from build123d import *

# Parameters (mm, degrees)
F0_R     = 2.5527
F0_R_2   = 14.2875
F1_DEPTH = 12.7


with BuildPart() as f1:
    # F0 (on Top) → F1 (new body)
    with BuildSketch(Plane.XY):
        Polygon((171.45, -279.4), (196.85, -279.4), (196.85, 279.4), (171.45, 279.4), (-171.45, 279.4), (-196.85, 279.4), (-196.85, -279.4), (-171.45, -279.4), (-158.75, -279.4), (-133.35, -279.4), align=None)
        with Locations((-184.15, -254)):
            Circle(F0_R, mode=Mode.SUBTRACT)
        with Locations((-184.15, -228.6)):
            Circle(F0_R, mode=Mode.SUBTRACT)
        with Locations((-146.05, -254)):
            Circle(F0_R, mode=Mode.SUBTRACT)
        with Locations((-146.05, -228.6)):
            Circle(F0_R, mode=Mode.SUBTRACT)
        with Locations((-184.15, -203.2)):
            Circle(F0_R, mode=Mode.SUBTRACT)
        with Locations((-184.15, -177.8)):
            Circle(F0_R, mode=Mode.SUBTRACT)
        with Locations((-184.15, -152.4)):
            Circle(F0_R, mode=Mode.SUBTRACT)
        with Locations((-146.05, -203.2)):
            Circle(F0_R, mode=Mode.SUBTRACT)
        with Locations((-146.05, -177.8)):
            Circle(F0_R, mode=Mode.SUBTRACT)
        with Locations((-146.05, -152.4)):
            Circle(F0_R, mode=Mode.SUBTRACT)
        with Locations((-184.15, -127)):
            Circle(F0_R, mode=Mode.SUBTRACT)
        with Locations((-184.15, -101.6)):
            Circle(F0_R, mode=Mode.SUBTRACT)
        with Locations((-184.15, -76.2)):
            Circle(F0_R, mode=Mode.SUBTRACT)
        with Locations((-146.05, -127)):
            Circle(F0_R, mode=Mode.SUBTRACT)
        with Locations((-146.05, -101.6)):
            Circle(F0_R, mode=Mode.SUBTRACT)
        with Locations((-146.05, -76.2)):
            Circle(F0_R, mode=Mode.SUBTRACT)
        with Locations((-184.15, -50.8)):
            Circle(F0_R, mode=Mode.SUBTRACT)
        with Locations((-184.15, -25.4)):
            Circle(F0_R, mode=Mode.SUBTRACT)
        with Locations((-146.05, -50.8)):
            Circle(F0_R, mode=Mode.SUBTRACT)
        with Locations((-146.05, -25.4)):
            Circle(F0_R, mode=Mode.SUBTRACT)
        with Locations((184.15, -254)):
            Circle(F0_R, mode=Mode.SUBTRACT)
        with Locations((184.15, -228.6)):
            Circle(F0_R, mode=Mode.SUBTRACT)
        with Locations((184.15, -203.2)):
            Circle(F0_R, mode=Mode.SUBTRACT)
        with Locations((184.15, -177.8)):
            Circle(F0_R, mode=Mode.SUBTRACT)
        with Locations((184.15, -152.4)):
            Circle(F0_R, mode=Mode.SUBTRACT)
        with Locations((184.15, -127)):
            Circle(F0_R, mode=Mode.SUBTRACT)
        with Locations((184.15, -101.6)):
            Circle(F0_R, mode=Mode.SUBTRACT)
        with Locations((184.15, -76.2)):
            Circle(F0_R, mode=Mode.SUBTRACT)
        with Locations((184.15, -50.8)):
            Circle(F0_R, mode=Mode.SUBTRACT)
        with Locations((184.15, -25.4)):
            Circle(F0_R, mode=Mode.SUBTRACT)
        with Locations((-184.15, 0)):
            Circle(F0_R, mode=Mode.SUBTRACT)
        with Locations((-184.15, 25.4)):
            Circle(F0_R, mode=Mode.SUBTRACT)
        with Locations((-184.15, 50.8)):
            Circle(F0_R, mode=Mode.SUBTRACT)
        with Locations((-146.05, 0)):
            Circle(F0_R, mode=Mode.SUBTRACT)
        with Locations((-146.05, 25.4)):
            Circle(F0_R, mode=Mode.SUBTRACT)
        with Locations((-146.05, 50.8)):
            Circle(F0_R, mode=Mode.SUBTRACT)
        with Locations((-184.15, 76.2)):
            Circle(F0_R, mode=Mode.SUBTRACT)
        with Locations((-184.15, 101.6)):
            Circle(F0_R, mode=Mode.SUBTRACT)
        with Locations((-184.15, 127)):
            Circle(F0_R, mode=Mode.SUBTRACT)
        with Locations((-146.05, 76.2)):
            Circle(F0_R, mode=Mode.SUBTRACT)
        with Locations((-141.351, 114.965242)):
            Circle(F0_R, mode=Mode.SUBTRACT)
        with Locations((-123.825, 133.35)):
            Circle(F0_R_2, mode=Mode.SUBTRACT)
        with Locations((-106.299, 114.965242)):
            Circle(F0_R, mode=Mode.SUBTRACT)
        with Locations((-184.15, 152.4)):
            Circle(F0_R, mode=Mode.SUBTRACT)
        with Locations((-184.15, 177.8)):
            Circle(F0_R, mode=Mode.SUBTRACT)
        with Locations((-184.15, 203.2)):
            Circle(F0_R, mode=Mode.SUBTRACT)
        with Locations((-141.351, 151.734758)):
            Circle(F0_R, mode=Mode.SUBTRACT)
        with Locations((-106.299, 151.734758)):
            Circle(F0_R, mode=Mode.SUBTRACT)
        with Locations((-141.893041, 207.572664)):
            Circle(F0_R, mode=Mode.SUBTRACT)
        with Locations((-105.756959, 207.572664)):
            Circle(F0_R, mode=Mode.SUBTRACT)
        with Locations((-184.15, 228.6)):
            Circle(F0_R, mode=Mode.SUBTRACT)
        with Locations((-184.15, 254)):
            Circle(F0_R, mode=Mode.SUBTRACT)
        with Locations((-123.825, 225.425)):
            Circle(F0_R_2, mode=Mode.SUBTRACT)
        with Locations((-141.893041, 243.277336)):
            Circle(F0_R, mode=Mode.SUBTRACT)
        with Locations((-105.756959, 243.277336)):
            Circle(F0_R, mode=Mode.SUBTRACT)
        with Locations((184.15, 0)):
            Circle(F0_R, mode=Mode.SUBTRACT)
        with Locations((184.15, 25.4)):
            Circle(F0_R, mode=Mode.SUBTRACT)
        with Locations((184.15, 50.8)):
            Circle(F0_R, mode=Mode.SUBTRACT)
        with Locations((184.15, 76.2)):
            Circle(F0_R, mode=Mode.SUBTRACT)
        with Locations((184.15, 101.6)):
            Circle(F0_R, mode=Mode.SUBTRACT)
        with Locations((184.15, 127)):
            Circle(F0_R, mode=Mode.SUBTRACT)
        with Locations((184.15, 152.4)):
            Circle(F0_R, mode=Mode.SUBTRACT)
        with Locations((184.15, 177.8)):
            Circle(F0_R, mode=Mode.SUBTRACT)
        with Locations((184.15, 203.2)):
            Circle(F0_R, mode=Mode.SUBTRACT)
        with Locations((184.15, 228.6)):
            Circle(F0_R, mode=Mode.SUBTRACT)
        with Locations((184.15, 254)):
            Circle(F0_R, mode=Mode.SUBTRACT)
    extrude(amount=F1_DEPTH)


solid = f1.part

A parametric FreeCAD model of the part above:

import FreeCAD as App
import Part
import Sketcher

V = App.Vector
Q = App.Units.Quantity

doc = App.newDocument("Part")
body = doc.addObject("PartDesign::Body", "Body")

# Sketch on XY plane
sketch1 = body.newObject("Sketcher::SketchObject", "Sketch")
sketch1.AttachmentSupport = (doc.getObject("XY_Plane"), [""])
sketch1.MapMode = "FlatFace"
sketch1.addGeometry([
    Part.LineSegment(V(196.8, -279.4, 0), V(196.8, 279.4, 0)),  # 0
    Part.LineSegment(V(196.8, 279.4, 0), V(-196.8, 279.4, 0)),  # 1
    Part.LineSegment(V(-196.8, 279.4, 0), V(-196.8, -279.4, 0)),  # 2
    Part.LineSegment(V(-196.8, -279.4, 0), V(196.8, -279.4, 0)),  # 3
    Part.Circle(V(-184.2, -254, 0), V(0, 0, 1), 2.6),  # 4
    Part.Circle(V(-184.2, -228.6, 0), V(0, 0, 1), 2.6),  # 5
    Part.Circle(V(-146.1, -254, 0), V(0, 0, 1), 2.6),  # 6
    Part.Circle(V(-146.1, -228.6, 0), V(0, 0, 1), 2.6),  # 7
    Part.Circle(V(-184.2, -203.2, 0), V(0, 0, 1), 2.6),  # 8
    Part.Circle(V(-146.1, -203.2, 0), V(0, 0, 1), 2.6),  # 9
    Part.Circle(V(-184.2, -177.8, 0), V(0, 0, 1), 2.6),  # 10
    Part.Circle(V(-146.1, -177.8, 0), V(0, 0, 1), 2.6),  # 11
    Part.Circle(V(-184.2, -152.4, 0), V(0, 0, 1), 2.6),  # 12
    Part.Circle(V(-146.1, -152.4, 0), V(0, 0, 1), 2.6),  # 13
    Part.Circle(V(-184.2, -127, 0), V(0, 0, 1), 2.6),  # 14
    Part.Circle(V(-184.2, -101.6, 0), V(0, 0, 1), 2.6),  # 15
    Part.Circle(V(-146.1, -127, 0), V(0, 0, 1), 2.6),  # 16
    Part.Circle(V(-146.1, -101.6, 0), V(0, 0, 1), 2.6),  # 17
    Part.Circle(V(-184.2, -76.2, 0), V(0, 0, 1), 2.6),  # 18
    Part.Circle(V(-146.1, -76.2, 0), V(0, 0, 1), 2.6),  # 19
    Part.Circle(V(-184.2, -50.8, 0), V(0, 0, 1), 2.6),  # 20
    Part.Circle(V(-146.1, -50.8, 0), V(0, 0, 1), 2.6),  # 21
    Part.Circle(V(-184.2, -25.4, 0), V(0, 0, 1), 2.6),  # 22
    Part.Circle(V(-146.1, -25.4, 0), V(0, 0, 1), 2.6),  # 23
    Part.Circle(V(184.2, -254, 0), V(0, 0, 1), 2.6),  # 24
    Part.Circle(V(184.2, -228.6, 0), V(0, 0, 1), 2.6),  # 25
    Part.Circle(V(184.2, -203.2, 0), V(0, 0, 1), 2.6),  # 26
    Part.Circle(V(184.2, -177.8, 0), V(0, 0, 1), 2.6),  # 27
    Part.Circle(V(184.2, -152.4, 0), V(0, 0, 1), 2.6),  # 28
    Part.Circle(V(184.2, -127, 0), V(0, 0, 1), 2.6),  # 29
    Part.Circle(V(184.2, -101.6, 0), V(0, 0, 1), 2.6),  # 30
    Part.Circle(V(184.2, -76.2, 0), V(0, 0, 1), 2.6),  # 31
    Part.Circle(V(184.2, -50.8, 0), V(0, 0, 1), 2.6),  # 32
    Part.Circle(V(184.2, -25.4, 0), V(0, 0, 1), 2.6),  # 33
    Part.Circle(V(-184.2, 0, 0), V(0, 0, 1), 2.6),  # 34
    Part.Circle(V(-184.2, 25.4, 0), V(0, 0, 1), 2.6),  # 35
    Part.Circle(V(-146.1, 0, 0), V(0, 0, 1), 2.6),  # 36
    Part.Circle(V(-146.1, 25.4, 0), V(0, 0, 1), 2.6),  # 37
    Part.Circle(V(-184.2, 50.8, 0), V(0, 0, 1), 2.6),  # 38
    Part.Circle(V(-146.1, 50.8, 0), V(0, 0, 1), 2.6),  # 39
    Part.Circle(V(-184.2, 76.2, 0), V(0, 0, 1), 2.6),  # 40
    Part.Circle(V(-146.1, 76.2, 0), V(0, 0, 1), 2.6),  # 41
    Part.Circle(V(-184.2, 101.6, 0), V(0, 0, 1), 2.6),  # 42
    Part.Circle(V(-184.2, 127, 0), V(0, 0, 1), 2.6),  # 43
    Part.Circle(V(-141.4, 115, 0), V(0, 0, 1), 2.6),  # 44
    Part.Circle(V(-106.3, 115, 0), V(0, 0, 1), 2.6),  # 45
    Part.Circle(V(-184.2, 152.4, 0), V(0, 0, 1), 2.6),  # 46
    Part.Circle(V(-141.4, 151.7, 0), V(0, 0, 1), 2.6),  # 47
    Part.Circle(V(-184.2, 177.8, 0), V(0, 0, 1), 2.6),  # 48
    Part.Circle(V(-123.8, 133.3, 0), V(0, 0, 1), 14.3),  # 49
    Part.Circle(V(-106.3, 151.7, 0), V(0, 0, 1), 2.6),  # 50
    Part.Circle(V(-184.2, 203.2, 0), V(0, 0, 1), 2.6),  # 51
    Part.Circle(V(-141.9, 207.6, 0), V(0, 0, 1), 2.6),  # 52
    Part.Circle(V(-184.2, 228.6, 0), V(0, 0, 1), 2.6),  # 53
    Part.Circle(V(-184.2, 254, 0), V(0, 0, 1), 2.6),  # 54
    Part.Circle(V(-141.9, 243.3, 0), V(0, 0, 1), 2.6),  # 55
    Part.Circle(V(-105.8, 207.6, 0), V(0, 0, 1), 2.6),  # 56
    Part.Circle(V(-123.8, 225.4, 0), V(0, 0, 1), 14.3),  # 57
    Part.Circle(V(-105.8, 243.3, 0), V(0, 0, 1), 2.6),  # 58
    Part.Circle(V(184.2, 0, 0), V(0, 0, 1), 2.6),  # 59
    Part.Circle(V(184.2, 25.4, 0), V(0, 0, 1), 2.6),  # 60
    Part.Circle(V(184.2, 50.8, 0), V(0, 0, 1), 2.6),  # 61
    Part.Circle(V(184.2, 76.2, 0), V(0, 0, 1), 2.6),  # 62
    Part.Circle(V(184.2, 101.6, 0), V(0, 0, 1), 2.6),  # 63
    Part.Circle(V(184.2, 127, 0), V(0, 0, 1), 2.6),  # 64
    Part.Circle(V(184.2, 152.4, 0), V(0, 0, 1), 2.6),  # 65
    Part.Circle(V(184.2, 177.8, 0), V(0, 0, 1), 2.6),  # 66
    Part.Circle(V(184.2, 203.2, 0), V(0, 0, 1), 2.6),  # 67
    Part.Circle(V(184.2, 228.6, 0), V(0, 0, 1), 2.6),  # 68
    Part.Circle(V(184.2, 254, 0), V(0, 0, 1), 2.6),  # 69
], False)
sketch1.addConstraint([
    Sketcher.Constraint("Coincident", 0, 2, 1, 1),
    Sketcher.Constraint("Coincident", 1, 2, 2, 1),
    Sketcher.Constraint("Coincident", 2, 2, 3, 1),
    Sketcher.Constraint("Coincident", 3, 2, 0, 1),
    Sketcher.Constraint("Vertical", 0),
    Sketcher.Constraint("Horizontal", 1),
    Sketcher.Constraint("Vertical", 2),
    Sketcher.Constraint("Horizontal", 3),
    Sketcher.Constraint("Equal", 4, 5),
    Sketcher.Constraint("Equal", 5, 6),
    Sketcher.Constraint("Equal", 6, 7),
    Sketcher.Constraint("Equal", 7, 8),
    Sketcher.Constraint("Equal", 8, 9),
    Sketcher.Constraint("Equal", 9, 10),
    Sketcher.Constraint("Equal", 10, 11),
    Sketcher.Constraint("Equal", 11, 12),
    Sketcher.Constraint("Equal", 12, 13),
    Sketcher.Constraint("Equal", 13, 14),
    Sketcher.Constraint("Equal", 14, 15),
    Sketcher.Constraint("Equal", 15, 16),
    Sketcher.Constraint("Equal", 16, 17),
    Sketcher.Constraint("Equal", 17, 18),
    Sketcher.Constraint("Equal", 18, 19),
    Sketcher.Constraint("Equal", 19, 20),
    Sketcher.Constraint("Equal", 20, 21),
    Sketcher.Constraint("Equal", 21, 22),
    Sketcher.Constraint("Equal", 22, 23),
    Sketcher.Constraint("Equal", 23, 24),
    Sketcher.Constraint("Equal", 24, 25),
    Sketcher.Constraint("Equal", 25, 26),
    Sketcher.Constraint("Equal", 26, 27),
    Sketcher.Constraint("Equal", 27, 28),
    Sketcher.Constraint("Equal", 28, 29),
    Sketcher.Constraint("Equal", 29, 30),
    Sketcher.Constraint("Equal", 30, 31),
    Sketcher.Constraint("Equal", 31, 32),
    Sketcher.Constraint("Equal", 32, 33),
    Sketcher.Constraint("Equal", 33, 34),
    Sketcher.Constraint("Equal", 34, 35),
    Sketcher.Constraint("Equal", 35, 36),
    Sketcher.Constraint("Equal", 36, 37),
    Sketcher.Constraint("Equal", 37, 38),
    Sketcher.Constraint("Equal", 38, 39),
    Sketcher.Constraint("Equal", 39, 40),
    Sketcher.Constraint("Equal", 40, 41),
    Sketcher.Constraint("Equal", 41, 42),
    Sketcher.Constraint("Equal", 42, 43),
    Sketcher.Constraint("Equal", 43, 44),
    Sketcher.Constraint("Equal", 44, 45),
    Sketcher.Constraint("Equal", 45, 46),
    Sketcher.Constraint("Equal", 46, 47),
    Sketcher.Constraint("Equal", 47, 48),
    Sketcher.Constraint("Equal", 48, 50),
    Sketcher.Constraint("Equal", 50, 51),
    Sketcher.Constraint("Equal", 51, 52),
    Sketcher.Constraint("Equal", 52, 53),
    Sketcher.Constraint("Equal", 53, 54),
    Sketcher.Constraint("Equal", 54, 55),
    Sketcher.Constraint("Equal", 55, 56),
    Sketcher.Constraint("Equal", 49, 57),
    Sketcher.Constraint("Equal", 56, 58),
    Sketcher.Constraint("Equal", 58, 59),
    Sketcher.Constraint("Equal", 59, 60),
    Sketcher.Constraint("Equal", 60, 61),
    Sketcher.Constraint("Equal", 61, 62),
    Sketcher.Constraint("Equal", 62, 63),
    Sketcher.Constraint("Equal", 63, 64),
    Sketcher.Constraint("Equal", 64, 65),
    Sketcher.Constraint("Equal", 65, 66),
    Sketcher.Constraint("Equal", 66, 67),
    Sketcher.Constraint("Equal", 67, 68),
    Sketcher.Constraint("Equal", 68, 69),
    Sketcher.Constraint("Symmetric", 33, 3, 35, 3, -1, 1),
    Sketcher.Constraint("Symmetric", 32, 3, 38, 3, -1, 1),
    Sketcher.Constraint("Symmetric", 31, 3, 40, 3, -1, 1),
    Sketcher.Constraint("Symmetric", 30, 3, 42, 3, -1, 1),
    Sketcher.Constraint("Symmetric", 29, 3, 43, 3, -1, 1),
    Sketcher.Constraint("Symmetric", 28, 3, 46, 3, -1, 1),
    Sketcher.Constraint("Symmetric", 27, 3, 48, 3, -1, 1),
    Sketcher.Constraint("Symmetric", 26, 3, 51, 3, -1, 1),
    Sketcher.Constraint("Symmetric", 25, 3, 53, 3, -1, 1),
    Sketcher.Constraint("Symmetric", 24, 3, 54, 3, -1, 1),
    Sketcher.Constraint("Symmetric", 34, 3, 59, 3, -1, 1),
    Sketcher.Constraint("Symmetric", 22, 3, 60, 3, -1, 1),
    Sketcher.Constraint("Symmetric", 20, 3, 61, 3, -1, 1),
    Sketcher.Constraint("Symmetric", 18, 3, 62, 3, -1, 1),
    Sketcher.Constraint("Symmetric", 15, 3, 63, 3, -1, 1),
    Sketcher.Constraint("Symmetric", 14, 3, 64, 3, -1, 1),
    Sketcher.Constraint("Symmetric", 12, 3, 65, 3, -1, 1),
    Sketcher.Constraint("Symmetric", 10, 3, 66, 3, -1, 1),
    Sketcher.Constraint("Symmetric", 8, 3, 67, 3, -1, 1),
    Sketcher.Constraint("Symmetric", 5, 3, 68, 3, -1, 1),
    Sketcher.Constraint("Symmetric", 4, 3, 69, 3, -1, 1),
    Sketcher.Constraint("Symmetric", 0, 2, 2, 2, -1, 1),
    Sketcher.Constraint("Symmetric", 4, 3, 24, 3, -2),
    Sketcher.Constraint("Symmetric", 5, 3, 25, 3, -2),
    Sketcher.Constraint("Symmetric", 8, 3, 26, 3, -2),
    Sketcher.Constraint("Symmetric", 10, 3, 27, 3, -2),
    Sketcher.Constraint("Symmetric", 12, 3, 28, 3, -2),
    Sketcher.Constraint("Symmetric", 14, 3, 29, 3, -2),
    Sketcher.Constraint("Symmetric", 15, 3, 30, 3, -2),
    Sketcher.Constraint("Symmetric", 18, 3, 31, 3, -2),
    Sketcher.Constraint("Symmetric", 20, 3, 32, 3, -2),
    Sketcher.Constraint("Symmetric", 22, 3, 33, 3, -2),
    Sketcher.Constraint("Symmetric", 23, 3, 37, 3, -1),
    Sketcher.Constraint("Symmetric", 21, 3, 39, 3, -1),
    Sketcher.Constraint("Symmetric", 19, 3, 41, 3, -1),
    Sketcher.Constraint("PointOnObject", 34, 3, -1),
    Sketcher.Constraint("PointOnObject", 36, 3, -1),
    Sketcher.Constraint("Horizontal", 4, 3, 6, 3),
    Sketcher.Constraint("Horizontal", 5, 3, 7, 3),
    Sketcher.Constraint("Horizontal", 8, 3, 9, 3),
    Sketcher.Constraint("Horizontal", 10, 3, 11, 3),
    Sketcher.Constraint("Horizontal", 12, 3, 13, 3),
    Sketcher.Constraint("Horizontal", 14, 3, 16, 3),
    Sketcher.Constraint("Horizontal", 15, 3, 17, 3),
    Sketcher.Constraint("Horizontal", 18, 3, 19, 3),
    Sketcher.Constraint("Horizontal", 20, 3, 21, 3),
    Sketcher.Constraint("Horizontal", 22, 3, 23, 3),
    Sketcher.Constraint("Horizontal", 44, 3, 45, 3),
    Sketcher.Constraint("Horizontal", 47, 3, 50, 3),
    Sketcher.Constraint("Horizontal", 52, 3, 56, 3),
    Sketcher.Constraint("Horizontal", 55, 3, 58, 3),
    Sketcher.Constraint("Vertical", 4, 3, 5, 3),
    Sketcher.Constraint("Vertical", 6, 3, 7, 3),
    Sketcher.Constraint("Vertical", 5, 3, 8, 3),
    Sketcher.Constraint("Vertical", 7, 3, 9, 3),
    Sketcher.Constraint("Vertical", 8, 3, 10, 3),
    Sketcher.Constraint("Vertical", 9, 3, 11, 3),
    Sketcher.Constraint("Vertical", 10, 3, 12, 3),
    Sketcher.Constraint("Vertical", 11, 3, 13, 3),
    Sketcher.Constraint("Vertical", 12, 3, 14, 3),
    Sketcher.Constraint("Vertical", 14, 3, 15, 3),
    Sketcher.Constraint("Vertical", 13, 3, 16, 3),
    Sketcher.Constraint("Vertical", 16, 3, 17, 3),
    Sketcher.Constraint("Vertical", 15, 3, 18, 3),
    Sketcher.Constraint("Vertical", 17, 3, 19, 3),
    Sketcher.Constraint("Vertical", 18, 3, 20, 3),
    Sketcher.Constraint("Vertical", 19, 3, 21, 3),
    Sketcher.Constraint("Vertical", 20, 3, 22, 3),
    Sketcher.Constraint("Vertical", 21, 3, 23, 3),
    Sketcher.Constraint("Vertical", 22, 3, 34, 3),
    Sketcher.Constraint("Vertical", 23, 3, 36, 3),
    Sketcher.Constraint("Vertical", 44, 3, 47, 3),
    Sketcher.Constraint("Vertical", 45, 3, 50, 3),
    Sketcher.Constraint("Vertical", 52, 3, 55, 3),
    Sketcher.Constraint("Vertical", 49, 3, 57, 3),
    Sketcher.Constraint("Vertical", 56, 3, 58, 3),
    Sketcher.Constraint("DistanceY", 0, 1, 0, 2, Q("22 in")),
    Sketcher.Constraint("Diameter", 4, Q("0.201 in")),
    Sketcher.Constraint("Diameter", 49, Q("1.125 in")),
    Sketcher.Constraint("DistanceX", 1, 2, 1, 1, Q("15.5 in")),
    Sketcher.Constraint("DistanceY", 4, 3, -1, 1, Q("10 in")),
    Sketcher.Constraint("DistanceY", 5, 3, -1, 1, Q("9 in")),
    Sketcher.Constraint("DistanceY", 8, 3, -1, 1, Q("8 in")),
    Sketcher.Constraint("DistanceY", 10, 3, -1, 1, Q("7 in")),
    Sketcher.Constraint("DistanceY", 12, 3, -1, 1, Q("6 in")),
    Sketcher.Constraint("DistanceY", 14, 3, -1, 1, Q("5 in")),
    Sketcher.Constraint("DistanceY", 15, 3, -1, 1, Q("4 in")),
    Sketcher.Constraint("DistanceY", 18, 3, -1, 1, Q("3 in")),
    Sketcher.Constraint("DistanceY", 20, 3, -1, 1, Q("2 in")),
    Sketcher.Constraint("DistanceY", 22, 3, -1, 1, Q("1 in")),
    Sketcher.Constraint("DistanceX", 4, 3, -1, 1, Q("7.25 in")),
    Sketcher.Constraint("DistanceX", 6, 3, -1, 1, Q("5.75 in")),
    Sketcher.Constraint("DistanceY", -1, 1, 49, 3, Q("5.25 in")),
    Sketcher.Constraint("DistanceX", 44, 3, -1, 1, Q("5.565 in")),
    Sketcher.Constraint("DistanceX", 45, 3, -1, 1, Q("4.185 in")),
    Sketcher.Constraint("DistanceX", 49, 3, -1, 1, Q("4.875 in")),
    Sketcher.Constraint("DistanceY", -1, 1, 57, 3, Q("8.875 in")),
    Sketcher.Constraint("DistanceY", -1, 1, 47, 3, Q("151.734758 mm")),
    Sketcher.Constraint("DistanceX", 52, 3, -1, 1, Q("141.893041 mm")),
    Sketcher.Constraint("DistanceX", 56, 3, -1, 1, Q("105.756959 mm")),
    Sketcher.Constraint("DistanceY", -1, 1, 44, 3, Q("114.965242 mm")),
    Sketcher.Constraint("DistanceY", -1, 1, 52, 3, Q("207.572664 mm")),
    Sketcher.Constraint("DistanceY", -1, 1, 55, 3, Q("243.277336 mm")),
])
pad1 = body.newObject("PartDesign::Pad", "Pad")
pad1.Profile = sketch1
pad1.Length = Q("0.5 in")

doc.recompute()
